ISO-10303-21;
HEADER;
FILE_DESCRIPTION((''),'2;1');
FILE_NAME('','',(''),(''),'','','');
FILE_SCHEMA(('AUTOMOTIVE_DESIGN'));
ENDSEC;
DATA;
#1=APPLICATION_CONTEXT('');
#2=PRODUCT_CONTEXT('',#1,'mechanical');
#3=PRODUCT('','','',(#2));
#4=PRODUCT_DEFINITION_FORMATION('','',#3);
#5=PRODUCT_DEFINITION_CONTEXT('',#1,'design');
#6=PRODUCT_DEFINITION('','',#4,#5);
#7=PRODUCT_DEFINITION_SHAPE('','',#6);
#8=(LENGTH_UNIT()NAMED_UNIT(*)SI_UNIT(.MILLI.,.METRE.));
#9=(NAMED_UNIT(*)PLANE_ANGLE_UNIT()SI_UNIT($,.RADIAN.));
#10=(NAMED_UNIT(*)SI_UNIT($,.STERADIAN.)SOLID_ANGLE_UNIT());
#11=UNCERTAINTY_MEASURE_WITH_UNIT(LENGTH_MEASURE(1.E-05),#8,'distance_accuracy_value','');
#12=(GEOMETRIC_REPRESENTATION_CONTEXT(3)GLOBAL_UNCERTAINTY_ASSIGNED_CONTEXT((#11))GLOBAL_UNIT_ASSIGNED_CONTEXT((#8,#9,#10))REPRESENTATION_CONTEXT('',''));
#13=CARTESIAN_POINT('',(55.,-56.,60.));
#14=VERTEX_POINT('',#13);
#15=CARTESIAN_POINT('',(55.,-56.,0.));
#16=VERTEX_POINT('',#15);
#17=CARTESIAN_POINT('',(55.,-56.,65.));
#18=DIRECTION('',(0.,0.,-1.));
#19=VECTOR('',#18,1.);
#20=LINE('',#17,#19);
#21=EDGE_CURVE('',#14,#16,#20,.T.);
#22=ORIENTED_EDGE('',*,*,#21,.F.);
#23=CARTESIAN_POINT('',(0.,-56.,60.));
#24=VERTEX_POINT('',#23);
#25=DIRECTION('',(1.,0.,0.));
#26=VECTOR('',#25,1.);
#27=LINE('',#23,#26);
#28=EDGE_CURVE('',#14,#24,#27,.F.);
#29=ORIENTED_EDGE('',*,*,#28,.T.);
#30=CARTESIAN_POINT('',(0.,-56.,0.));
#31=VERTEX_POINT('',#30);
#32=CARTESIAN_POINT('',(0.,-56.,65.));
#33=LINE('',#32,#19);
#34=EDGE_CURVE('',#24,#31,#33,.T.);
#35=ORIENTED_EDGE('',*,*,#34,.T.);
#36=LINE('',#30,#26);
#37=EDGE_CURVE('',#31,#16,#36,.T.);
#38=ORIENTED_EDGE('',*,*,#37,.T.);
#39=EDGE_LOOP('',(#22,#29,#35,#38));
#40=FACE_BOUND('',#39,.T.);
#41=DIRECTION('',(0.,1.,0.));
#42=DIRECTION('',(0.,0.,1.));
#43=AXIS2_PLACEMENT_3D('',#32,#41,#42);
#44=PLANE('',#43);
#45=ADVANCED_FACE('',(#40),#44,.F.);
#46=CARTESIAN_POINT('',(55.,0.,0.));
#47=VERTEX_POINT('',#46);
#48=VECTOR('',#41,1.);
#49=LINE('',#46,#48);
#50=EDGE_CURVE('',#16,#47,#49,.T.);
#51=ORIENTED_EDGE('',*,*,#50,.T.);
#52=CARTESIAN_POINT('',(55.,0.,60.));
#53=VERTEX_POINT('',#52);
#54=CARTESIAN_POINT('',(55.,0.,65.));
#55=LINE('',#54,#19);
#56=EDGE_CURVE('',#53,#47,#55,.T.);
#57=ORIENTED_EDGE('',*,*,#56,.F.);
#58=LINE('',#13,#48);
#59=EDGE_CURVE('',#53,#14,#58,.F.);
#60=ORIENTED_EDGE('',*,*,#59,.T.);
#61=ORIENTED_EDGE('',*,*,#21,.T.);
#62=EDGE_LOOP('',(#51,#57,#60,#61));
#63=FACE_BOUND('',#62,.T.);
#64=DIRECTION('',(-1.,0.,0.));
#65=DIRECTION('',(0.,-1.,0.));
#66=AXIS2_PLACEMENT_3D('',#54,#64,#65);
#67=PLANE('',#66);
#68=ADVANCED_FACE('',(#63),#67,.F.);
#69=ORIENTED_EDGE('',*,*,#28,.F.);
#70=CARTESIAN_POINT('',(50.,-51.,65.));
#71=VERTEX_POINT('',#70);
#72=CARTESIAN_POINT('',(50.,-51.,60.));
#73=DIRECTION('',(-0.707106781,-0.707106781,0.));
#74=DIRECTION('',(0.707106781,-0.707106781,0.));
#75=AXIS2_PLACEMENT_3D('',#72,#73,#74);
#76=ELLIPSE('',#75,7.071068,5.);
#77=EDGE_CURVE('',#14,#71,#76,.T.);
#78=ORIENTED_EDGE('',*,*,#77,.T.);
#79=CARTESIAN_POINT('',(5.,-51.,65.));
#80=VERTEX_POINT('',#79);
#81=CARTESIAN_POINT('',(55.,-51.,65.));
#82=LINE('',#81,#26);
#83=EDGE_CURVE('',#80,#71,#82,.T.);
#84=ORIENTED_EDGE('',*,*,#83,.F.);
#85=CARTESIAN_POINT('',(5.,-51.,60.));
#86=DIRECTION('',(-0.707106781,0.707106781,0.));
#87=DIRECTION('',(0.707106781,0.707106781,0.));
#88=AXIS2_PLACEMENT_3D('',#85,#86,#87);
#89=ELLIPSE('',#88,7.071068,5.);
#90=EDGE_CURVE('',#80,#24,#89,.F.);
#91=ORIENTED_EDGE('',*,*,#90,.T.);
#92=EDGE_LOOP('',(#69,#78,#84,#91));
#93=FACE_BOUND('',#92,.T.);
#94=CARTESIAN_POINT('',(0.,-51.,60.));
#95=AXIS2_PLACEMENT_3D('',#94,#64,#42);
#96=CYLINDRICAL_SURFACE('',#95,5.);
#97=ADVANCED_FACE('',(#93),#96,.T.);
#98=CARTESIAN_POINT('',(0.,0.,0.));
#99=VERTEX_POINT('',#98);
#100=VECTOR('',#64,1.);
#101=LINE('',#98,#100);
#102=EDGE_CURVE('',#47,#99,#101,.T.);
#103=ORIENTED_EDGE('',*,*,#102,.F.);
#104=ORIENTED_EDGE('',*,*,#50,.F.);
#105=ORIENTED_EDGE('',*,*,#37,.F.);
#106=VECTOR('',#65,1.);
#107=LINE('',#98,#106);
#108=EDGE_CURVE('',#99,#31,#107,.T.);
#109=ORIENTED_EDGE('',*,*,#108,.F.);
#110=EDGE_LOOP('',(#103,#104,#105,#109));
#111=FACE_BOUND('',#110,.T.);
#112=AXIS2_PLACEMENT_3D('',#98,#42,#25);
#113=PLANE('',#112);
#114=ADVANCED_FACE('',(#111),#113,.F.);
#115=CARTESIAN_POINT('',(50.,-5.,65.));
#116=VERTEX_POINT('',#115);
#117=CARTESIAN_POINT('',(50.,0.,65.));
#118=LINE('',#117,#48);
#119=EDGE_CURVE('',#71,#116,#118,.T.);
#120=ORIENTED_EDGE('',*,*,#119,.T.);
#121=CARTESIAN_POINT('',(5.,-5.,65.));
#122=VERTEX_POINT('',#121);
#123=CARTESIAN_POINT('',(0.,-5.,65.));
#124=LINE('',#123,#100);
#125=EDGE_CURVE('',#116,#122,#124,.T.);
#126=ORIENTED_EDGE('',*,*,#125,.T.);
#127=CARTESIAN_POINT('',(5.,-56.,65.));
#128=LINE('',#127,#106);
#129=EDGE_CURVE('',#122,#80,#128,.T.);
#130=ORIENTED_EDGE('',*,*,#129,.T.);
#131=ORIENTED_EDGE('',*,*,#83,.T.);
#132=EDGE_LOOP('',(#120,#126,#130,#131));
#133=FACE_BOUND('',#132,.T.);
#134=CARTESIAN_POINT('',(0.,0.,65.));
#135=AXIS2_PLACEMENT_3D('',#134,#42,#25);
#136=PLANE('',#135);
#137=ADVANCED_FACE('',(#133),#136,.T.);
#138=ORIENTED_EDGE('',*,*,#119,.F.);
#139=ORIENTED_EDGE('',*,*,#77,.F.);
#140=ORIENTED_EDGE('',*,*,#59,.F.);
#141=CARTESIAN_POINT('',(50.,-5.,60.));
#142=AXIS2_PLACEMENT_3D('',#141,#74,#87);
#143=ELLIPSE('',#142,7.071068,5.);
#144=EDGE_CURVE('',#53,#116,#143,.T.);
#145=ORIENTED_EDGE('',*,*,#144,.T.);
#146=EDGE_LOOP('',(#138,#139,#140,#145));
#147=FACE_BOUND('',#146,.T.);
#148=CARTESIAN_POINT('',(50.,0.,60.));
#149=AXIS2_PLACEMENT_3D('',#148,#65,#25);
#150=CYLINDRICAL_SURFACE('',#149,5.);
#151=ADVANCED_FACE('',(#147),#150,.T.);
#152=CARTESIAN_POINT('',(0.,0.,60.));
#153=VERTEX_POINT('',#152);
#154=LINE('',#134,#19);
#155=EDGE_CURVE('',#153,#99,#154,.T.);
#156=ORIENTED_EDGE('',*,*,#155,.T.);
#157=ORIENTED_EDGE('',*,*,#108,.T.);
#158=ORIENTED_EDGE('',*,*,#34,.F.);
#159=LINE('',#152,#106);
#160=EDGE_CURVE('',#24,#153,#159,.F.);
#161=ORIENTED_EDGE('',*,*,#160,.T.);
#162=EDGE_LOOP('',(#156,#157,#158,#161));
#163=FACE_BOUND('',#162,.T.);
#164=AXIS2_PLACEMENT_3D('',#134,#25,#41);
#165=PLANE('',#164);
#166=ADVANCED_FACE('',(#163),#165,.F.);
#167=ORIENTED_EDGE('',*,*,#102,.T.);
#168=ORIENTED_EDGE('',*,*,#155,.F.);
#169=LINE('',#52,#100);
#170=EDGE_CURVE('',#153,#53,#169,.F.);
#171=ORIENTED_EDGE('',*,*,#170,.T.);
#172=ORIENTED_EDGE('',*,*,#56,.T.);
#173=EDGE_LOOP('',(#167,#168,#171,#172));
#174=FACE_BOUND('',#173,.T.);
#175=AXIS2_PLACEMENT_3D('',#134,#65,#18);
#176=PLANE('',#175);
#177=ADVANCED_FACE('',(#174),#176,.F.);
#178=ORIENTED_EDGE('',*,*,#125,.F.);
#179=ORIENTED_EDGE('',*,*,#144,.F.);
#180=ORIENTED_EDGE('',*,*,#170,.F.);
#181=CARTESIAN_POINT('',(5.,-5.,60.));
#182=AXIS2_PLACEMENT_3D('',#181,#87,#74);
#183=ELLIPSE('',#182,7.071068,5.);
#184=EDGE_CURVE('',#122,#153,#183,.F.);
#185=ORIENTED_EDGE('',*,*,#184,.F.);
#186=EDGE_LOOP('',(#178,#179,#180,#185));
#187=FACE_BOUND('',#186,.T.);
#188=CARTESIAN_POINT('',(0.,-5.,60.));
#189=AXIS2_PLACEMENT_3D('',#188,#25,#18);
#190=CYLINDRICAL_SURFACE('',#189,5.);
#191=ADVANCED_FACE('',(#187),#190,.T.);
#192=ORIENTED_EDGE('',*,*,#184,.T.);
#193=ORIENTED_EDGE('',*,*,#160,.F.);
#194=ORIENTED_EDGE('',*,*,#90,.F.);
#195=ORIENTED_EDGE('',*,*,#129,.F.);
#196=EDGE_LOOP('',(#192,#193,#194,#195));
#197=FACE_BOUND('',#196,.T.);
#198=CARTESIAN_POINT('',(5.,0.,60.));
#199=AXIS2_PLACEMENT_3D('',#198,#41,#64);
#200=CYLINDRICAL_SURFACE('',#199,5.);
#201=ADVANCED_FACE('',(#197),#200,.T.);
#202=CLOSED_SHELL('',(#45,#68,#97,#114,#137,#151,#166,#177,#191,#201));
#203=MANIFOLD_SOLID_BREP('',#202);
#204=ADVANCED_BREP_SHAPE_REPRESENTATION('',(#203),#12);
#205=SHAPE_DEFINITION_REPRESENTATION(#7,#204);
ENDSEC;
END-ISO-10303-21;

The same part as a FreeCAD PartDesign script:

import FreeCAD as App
import Part
import Sketcher
Q = App.Units.Quantity


def edges_at(feature, points):
    """Names of the edges that pass closest to the given points."""
    edges = feature.Shape.Edges
    near = lambda p: min(range(len(edges)), key=lambda i: edges[i].distToShape(Part.Vertex(*p))[0])
    return sorted({f"Edge{near(p) + 1}" for p in points})


def add_polygon(sketch, points):
    """Adds a closed chain of lines whose ends are joined by coincident constraints."""
    first, n = sketch.GeometryCount, len(points)
    for a, b in zip(points, points[1:] + points[:1]):
        sketch.addGeometry(Part.LineSegment(App.Vector(*a, 0), App.Vector(*b, 0)), False)
    for i in range(n):
        sketch.addConstraint(Sketcher.Constraint("Coincident", first + i, 2, first + (i + 1) % n, 1))

doc = App.newDocument("Part")
body = doc.addObject("PartDesign::Body", "Body")

sketch1 = doc.addObject("Sketcher::SketchObject", "Sketch")
body.addObject(sketch1)
sketch1.AttachmentSupport = (doc.XY_Plane, [""])
sketch1.MapMode = "FlatFace"
add_polygon(sketch1, [(0, 0), (0, -56), (55, -56), (55, 0)])
sketch1.addConstraint([
    Sketcher.Constraint("Vertical", 0),
    Sketcher.Constraint("Horizontal", 1),
    Sketcher.Constraint("Vertical", 2),
    Sketcher.Constraint("Horizontal", 3),
    Sketcher.Constraint("Coincident", 3, 2, -1, 1),
    Sketcher.Constraint("DistanceX", 1, 1, 1, 2, Q("55 mm")),
    Sketcher.Constraint("DistanceY", 0, 2, 0, 1, Q("56 mm")),
])
pad1 = doc.addObject("PartDesign::Pad", "Pad")
body.addObject(pad1)
pad1.Profile = sketch1
pad1.Length = 65
doc.recompute()

fillet = doc.addObject("PartDesign::Fillet", "Fillet")
body.addObject(fillet)
fillet.Base = (pad1, edges_at(pad1, [
    (55, -28, 65),
    (27.5, 0, 65),
    (0, -28, 65),
    (27.5, -56, 65),
]))
fillet.Radius = 5

doc.recompute()
